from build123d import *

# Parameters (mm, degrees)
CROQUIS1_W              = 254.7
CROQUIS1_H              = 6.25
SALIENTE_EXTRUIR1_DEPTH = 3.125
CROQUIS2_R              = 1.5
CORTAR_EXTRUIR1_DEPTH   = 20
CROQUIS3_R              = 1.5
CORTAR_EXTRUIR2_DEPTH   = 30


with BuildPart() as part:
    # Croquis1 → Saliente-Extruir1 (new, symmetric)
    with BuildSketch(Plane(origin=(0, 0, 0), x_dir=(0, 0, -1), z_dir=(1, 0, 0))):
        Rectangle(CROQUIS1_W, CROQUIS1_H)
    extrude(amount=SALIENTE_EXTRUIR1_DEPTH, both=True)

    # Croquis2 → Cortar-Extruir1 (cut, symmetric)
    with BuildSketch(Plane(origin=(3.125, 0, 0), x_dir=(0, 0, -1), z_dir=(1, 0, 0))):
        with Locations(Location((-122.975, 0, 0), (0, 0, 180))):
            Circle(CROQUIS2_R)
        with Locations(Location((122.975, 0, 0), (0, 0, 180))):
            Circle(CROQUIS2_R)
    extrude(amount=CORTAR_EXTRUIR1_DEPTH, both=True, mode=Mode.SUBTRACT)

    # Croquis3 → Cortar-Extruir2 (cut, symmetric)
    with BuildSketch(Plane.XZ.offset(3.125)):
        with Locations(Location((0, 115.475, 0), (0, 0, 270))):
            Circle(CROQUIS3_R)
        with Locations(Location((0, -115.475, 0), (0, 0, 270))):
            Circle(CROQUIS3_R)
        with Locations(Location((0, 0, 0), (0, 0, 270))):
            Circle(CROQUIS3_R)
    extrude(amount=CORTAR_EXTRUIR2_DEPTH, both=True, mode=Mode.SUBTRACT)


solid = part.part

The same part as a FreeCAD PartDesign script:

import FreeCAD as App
import Part
import Sketcher
from FreeCAD import Vector
Q = App.Units.Quantity


def add_polygon(sketch, points):
    """Adds a closed chain of lines whose ends are joined by coincident constraints."""
    first, n = sketch.GeometryCount, len(points)
    for a, b in zip(points, points[1:] + points[:1]):
        sketch.addGeometry(Part.LineSegment(App.Vector(*a, 0), App.Vector(*b, 0)), False)
    for i in range(n):
        sketch.addConstraint(Sketcher.Constraint("Coincident", first + i, 2, first + (i + 1) % n, 1))

doc = App.newDocument("Part")
body = doc.addObject("PartDesign::Body", "Body")

sketch1 = body.newObject("Sketcher::SketchObject", "Sketch")
sketch1.AttachmentSupport = (doc.getObject("YZ_Plane"), [""])
sketch1.MapMode = "FlatFace"
add_polygon(sketch1, [(3, 127), (-3, 127), (-3, -127), (3, -127)])
sketch1.addConstraint([
    Sketcher.Constraint("Horizontal", 0),
    Sketcher.Constraint("Vertical", 1),
    Sketcher.Constraint("Horizontal", 2),
    Sketcher.Constraint("Vertical", 3),
    Sketcher.Constraint("Symmetric", 0, 2, 2, 2, -1, 1),
    Sketcher.Constraint("DistanceY", 1, 2, 1, 1, Q("254.7 mm")),
    Sketcher.Constraint("DistanceX", 0, 2, 0, 1, Q("6.25 mm")),
])
pad1 = body.newObject("PartDesign::Pad", "Pad")
pad1.Profile = sketch1
pad1.Length = 6.25
pad1.Midplane = True

sketch2 = body.newObject("Sketcher::SketchObject", "Sketch001")
sketch2.AttachmentSupport = (doc.getObject("YZ_Plane"), [""])
sketch2.MapMode = "FlatFace"
sketch2.AttachmentOffset = App.Placement(Vector(0, 0, 3.125), App.Rotation())
sketch2.addGeometry([
    Part.Circle(Vector(0, 123, 0), Vector(0, 0, 1), 1.5),
    Part.Circle(Vector(0, -123, 0), Vector(0, 0, 1), 1.5),
], False)
sketch2.addConstraint([
    Sketcher.Constraint("Equal", 0, 1),
    Sketcher.Constraint("Symmetric", 0, 3, 1, 3, -1, 1),
    Sketcher.Constraint("PointOnObject", 0, 3, -2),
    Sketcher.Constraint("Diameter", 0, Q("3 mm")),
    Sketcher.Constraint("DistanceY", 1, 3, 0, 3, Q("245.95 mm")),
])
pocket1 = body.newObject("PartDesign::Pocket", "Pocket")
pocket1.Profile = sketch2
pocket1.Length = 40
pocket1.Midplane = True

sketch3 = body.newObject("Sketcher::SketchObject", "Sketch002")
sketch3.AttachmentSupport = (doc.getObject("XZ_Plane"), [""])
sketch3.MapMode = "FlatFace"
sketch3.AttachmentOffset = App.Placement(Vector(0, 0, 3.125), App.Rotation())
sketch3.addGeometry([
    Part.Circle(Vector(0, 115.5, 0), Vector(0, 0, 1), 1.5),
    Part.Circle(Vector(0, -115.5, 0), Vector(0, 0, 1), 1.5),
    Part.Circle(Vector(0, 0, 0), Vector(0, 0, 1), 1.5),
], False)
sketch3.addConstraint([
    Sketcher.Constraint("Coincident", 2, 3, -1, 1),
    Sketcher.Constraint("Equal", 0, 1),
    Sketcher.Constraint("Equal", 1, 2),
    Sketcher.Constraint("Symmetric", 0, 3, 1, 3, -1, 1),
    Sketcher.Constraint("PointOnObject", 0, 3, -2),
    Sketcher.Constraint("Diameter", 0, Q("3 mm")),
    Sketcher.Constraint("DistanceY", 1, 3, 0, 3, Q("230.95 mm")),
])
pocket2 = body.newObject("PartDesign::Pocket", "Pocket001")
pocket2.Profile = sketch3
pocket2.Length = 60
pocket2.Midplane = True

doc.recompute()
